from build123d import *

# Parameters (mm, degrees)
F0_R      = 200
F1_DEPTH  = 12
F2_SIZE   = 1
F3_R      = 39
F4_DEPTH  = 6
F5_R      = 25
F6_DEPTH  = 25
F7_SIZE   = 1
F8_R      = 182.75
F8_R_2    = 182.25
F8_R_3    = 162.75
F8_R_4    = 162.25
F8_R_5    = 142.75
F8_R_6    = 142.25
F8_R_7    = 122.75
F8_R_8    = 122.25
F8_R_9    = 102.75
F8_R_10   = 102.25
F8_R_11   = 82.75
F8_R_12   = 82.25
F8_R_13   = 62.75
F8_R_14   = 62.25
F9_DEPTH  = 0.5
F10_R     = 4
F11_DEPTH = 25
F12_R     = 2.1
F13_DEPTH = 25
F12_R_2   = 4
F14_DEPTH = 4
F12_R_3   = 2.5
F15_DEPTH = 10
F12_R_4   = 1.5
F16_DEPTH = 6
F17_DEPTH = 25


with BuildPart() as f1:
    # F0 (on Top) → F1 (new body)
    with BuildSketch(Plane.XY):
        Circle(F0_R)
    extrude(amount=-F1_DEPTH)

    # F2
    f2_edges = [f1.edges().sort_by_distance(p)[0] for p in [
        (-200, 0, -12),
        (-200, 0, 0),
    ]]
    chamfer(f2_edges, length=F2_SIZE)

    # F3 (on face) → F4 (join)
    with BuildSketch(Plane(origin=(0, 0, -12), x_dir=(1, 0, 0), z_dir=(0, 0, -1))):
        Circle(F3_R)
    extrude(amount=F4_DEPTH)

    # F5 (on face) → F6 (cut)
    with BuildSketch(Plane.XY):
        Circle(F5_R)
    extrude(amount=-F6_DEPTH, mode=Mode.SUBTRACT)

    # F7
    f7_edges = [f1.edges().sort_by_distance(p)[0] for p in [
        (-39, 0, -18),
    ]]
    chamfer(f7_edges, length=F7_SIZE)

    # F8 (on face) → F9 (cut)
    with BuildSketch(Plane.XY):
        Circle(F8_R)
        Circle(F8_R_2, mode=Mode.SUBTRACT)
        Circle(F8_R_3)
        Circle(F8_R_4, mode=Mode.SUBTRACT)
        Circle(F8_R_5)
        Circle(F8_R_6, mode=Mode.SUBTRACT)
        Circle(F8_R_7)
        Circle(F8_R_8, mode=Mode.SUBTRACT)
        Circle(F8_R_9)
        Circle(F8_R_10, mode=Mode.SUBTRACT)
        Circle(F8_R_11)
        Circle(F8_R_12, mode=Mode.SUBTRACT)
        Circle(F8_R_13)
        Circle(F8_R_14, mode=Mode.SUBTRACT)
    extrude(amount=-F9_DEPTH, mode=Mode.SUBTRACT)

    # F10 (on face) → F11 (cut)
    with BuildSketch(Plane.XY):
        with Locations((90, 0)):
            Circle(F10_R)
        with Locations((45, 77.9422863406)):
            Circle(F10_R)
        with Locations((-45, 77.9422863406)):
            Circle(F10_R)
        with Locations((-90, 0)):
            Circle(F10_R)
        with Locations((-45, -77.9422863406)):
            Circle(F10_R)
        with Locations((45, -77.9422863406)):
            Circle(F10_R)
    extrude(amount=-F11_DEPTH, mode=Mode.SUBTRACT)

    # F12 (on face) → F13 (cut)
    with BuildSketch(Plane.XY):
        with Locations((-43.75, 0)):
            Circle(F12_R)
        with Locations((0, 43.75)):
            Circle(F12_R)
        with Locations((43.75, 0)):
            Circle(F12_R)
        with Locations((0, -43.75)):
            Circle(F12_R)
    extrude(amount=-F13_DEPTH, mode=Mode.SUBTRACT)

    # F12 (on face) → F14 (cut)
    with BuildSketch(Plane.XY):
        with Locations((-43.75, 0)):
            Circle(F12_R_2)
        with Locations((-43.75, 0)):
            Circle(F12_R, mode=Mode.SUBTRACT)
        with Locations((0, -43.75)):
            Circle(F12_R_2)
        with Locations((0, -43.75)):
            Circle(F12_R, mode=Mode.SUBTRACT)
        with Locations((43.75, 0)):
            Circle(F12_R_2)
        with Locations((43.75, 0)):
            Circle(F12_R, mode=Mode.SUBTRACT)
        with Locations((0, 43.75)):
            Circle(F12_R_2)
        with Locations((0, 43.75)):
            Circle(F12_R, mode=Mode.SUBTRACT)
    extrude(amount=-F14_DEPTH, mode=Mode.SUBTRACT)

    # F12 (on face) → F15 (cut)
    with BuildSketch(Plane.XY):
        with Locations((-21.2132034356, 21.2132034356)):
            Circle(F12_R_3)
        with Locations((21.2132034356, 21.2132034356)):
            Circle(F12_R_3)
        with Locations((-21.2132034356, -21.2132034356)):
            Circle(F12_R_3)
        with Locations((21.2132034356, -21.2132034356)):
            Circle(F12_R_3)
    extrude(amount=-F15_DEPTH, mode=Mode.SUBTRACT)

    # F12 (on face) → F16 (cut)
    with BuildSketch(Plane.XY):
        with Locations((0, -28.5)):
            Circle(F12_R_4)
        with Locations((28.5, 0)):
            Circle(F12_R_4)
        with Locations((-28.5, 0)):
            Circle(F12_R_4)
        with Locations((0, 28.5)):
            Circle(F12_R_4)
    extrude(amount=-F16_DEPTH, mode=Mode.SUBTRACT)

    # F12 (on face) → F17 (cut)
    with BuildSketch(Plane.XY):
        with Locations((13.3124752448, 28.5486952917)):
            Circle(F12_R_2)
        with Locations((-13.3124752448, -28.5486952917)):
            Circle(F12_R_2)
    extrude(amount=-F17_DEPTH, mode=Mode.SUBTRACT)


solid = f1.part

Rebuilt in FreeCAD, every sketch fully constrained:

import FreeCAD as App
import Part
import Sketcher
from FreeCAD import Vector


def edges_at(feature, points):
    """Names of the edges that pass closest to the given points."""
    edges = feature.Shape.Edges
    near = lambda p: min(range(len(edges)), key=lambda i: edges[i].distToShape(Part.Vertex(*p))[0])
    return sorted({f"Edge{near(p) + 1}" for p in points})

doc = App.newDocument("Part")
body = doc.addObject("PartDesign::Body", "Body")

# Sketch on XY plane
sketch1 = body.newObject("Sketcher::SketchObject", "Sketch")
sketch1.AttachmentSupport = (doc.getObject("XY_Plane"), [""])
sketch1.MapMode = "FlatFace"
sketch1.addGeometry(Part.Circle(Vector(0, 0, 0), Vector(0, 0, 1), 200), False)
sketch1.addConstraint([
    Sketcher.Constraint("Coincident", 0, 3, -1, 1),
    Sketcher.Constraint("Diameter", 0, 400.0),
])
pad1 = body.newObject("PartDesign::Pad", "Pad")
pad1.Profile = sketch1
pad1.Length = 12
pad1.Reversed = True
doc.recompute()

chamfer = body.newObject("PartDesign::Chamfer", "Chamfer")
chamfer.Base = (pad1, edges_at(pad1, [(-200, 0, -12), (-200, 0, 0)]))
chamfer.Size = 1

# Sketch on XY plane
sketch2 = body.newObject("Sketcher::SketchObject", "Sketch001")
sketch2.AttachmentSupport = (doc.getObject("XY_Plane"), [""])
sketch2.MapMode = "FlatFace"
sketch2.AttachmentOffset = App.Placement(Vector(0, 0, -12), App.Rotation())
sketch2.addGeometry(Part.Circle(Vector(0, 0, 0), Vector(0, 0, 1), 39), False)
sketch2.addConstraint([
    Sketcher.Constraint("Coincident", 0, 3, -1, 1),
    Sketcher.Constraint("Diameter", 0, 78.0),
])
pad2 = body.newObject("PartDesign::Pad", "Pad001")
pad2.Profile = sketch2
pad2.Length = 6
pad2.Reversed = True

# Sketch on XY plane
sketch3 = body.newObject("Sketcher::SketchObject", "Sketch002")
sketch3.AttachmentSupport = (doc.getObject("XY_Plane"), [""])
sketch3.MapMode = "FlatFace"
sketch3.addGeometry(Part.Circle(Vector(0, 0, 0), Vector(0, 0, 1), 25), False)
sketch3.addConstraint([
    Sketcher.Constraint("Coincident", 0, 3, -1, 1),
    Sketcher.Constraint("Diameter", 0, 50.0),
])
pocket1 = body.newObject("PartDesign::Pocket", "Pocket")
pocket1.Profile = sketch3
pocket1.Length = 25
doc.recompute()

chamfer2 = body.newObject("PartDesign::Chamfer", "Chamfer001")
chamfer2.Base = (pocket1, edges_at(pocket1, [(-39, 0, -18)]))
chamfer2.Size = 1

# Sketch on XY plane
sketch4 = body.newObject("Sketcher::SketchObject", "Sketch003")
sketch4.AttachmentSupport = (doc.getObject("XY_Plane"), [""])
sketch4.MapMode = "FlatFace"
sketch4.addGeometry([
    Part.Circle(Vector(0, 0, 0), Vector(0, 0, 1), 182.75),  # 0
    Part.Circle(Vector(0, 0, 0), Vector(0, 0, 1), 182.25),  # 1
    Part.Circle(Vector(0, 0, 0), Vector(0, 0, 1), 162.75),  # 2
    Part.Circle(Vector(0, 0, 0), Vector(0, 0, 1), 162.25),  # 3
    Part.Circle(Vector(0, 0, 0), Vector(0, 0, 1), 142.75),  # 4
    Part.Circle(Vector(0, 0, 0), Vector(0, 0, 1), 142.25),  # 5
    Part.Circle(Vector(0, 0, 0), Vector(0, 0, 1), 122.75),  # 6
    Part.Circle(Vector(0, 0, 0), Vector(0, 0, 1), 122.25),  # 7
    Part.Circle(Vector(0, 0, 0), Vector(0, 0, 1), 102.75),  # 8
    Part.Circle(Vector(0, 0, 0), Vector(0, 0, 1), 102.25),  # 9
    Part.Circle(Vector(0, 0, 0), Vector(0, 0, 1), 82.75),  # 10
    Part.Circle(Vector(0, 0, 0), Vector(0, 0, 1), 82.25),  # 11
    Part.Circle(Vector(0, 0, 0), Vector(0, 0, 1), 62.75),  # 12
    Part.Circle(Vector(0, 0, 0), Vector(0, 0, 1), 62.25),  # 13
], False)
sketch4.addConstraint([
    Sketcher.Constraint("Coincident", 0, 3, -1, 1),
    Sketcher.Constraint("Coincident", 1, 3, -1, 1),
    Sketcher.Constraint("Coincident", 2, 3, -1, 1),
    Sketcher.Constraint("Coincident", 3, 3, -1, 1),
    Sketcher.Constraint("Coincident", 4, 3, -1, 1),
    Sketcher.Constraint("Coincident", 5, 3, -1, 1),
    Sketcher.Constraint("Coincident", 6, 3, -1, 1),
    Sketcher.Constraint("Coincident", 7, 3, -1, 1),
    Sketcher.Constraint("Coincident", 8, 3, -1, 1),
    Sketcher.Constraint("Coincident", 9, 3, -1, 1),
    Sketcher.Constraint("Coincident", 10, 3, -1, 1),
    Sketcher.Constraint("Coincident", 11, 3, -1, 1),
    Sketcher.Constraint("Coincident", 12, 3, -1, 1),
    Sketcher.Constraint("Coincident", 13, 3, -1, 1),
    Sketcher.Constraint("Diameter", 0, 365.5),
    Sketcher.Constraint("Diameter", 1, 364.5),
    Sketcher.Constraint("Diameter", 2, 325.5),
    Sketcher.Constraint("Diameter", 3, 324.5),
    Sketcher.Constraint("Diameter", 4, 285.5),
    Sketcher.Constraint("Diameter", 5, 284.5),
    Sketcher.Constraint("Diameter", 6, 245.5),
    Sketcher.Constraint("Diameter", 7, 244.5),
    Sketcher.Constraint("Diameter", 8, 205.5),
    Sketcher.Constraint("Diameter", 9, 204.5),
    Sketcher.Constraint("Diameter", 10, 165.5),
    Sketcher.Constraint("Diameter", 11, 164.5),
    Sketcher.Constraint("Diameter", 12, 125.5),
    Sketcher.Constraint("Diameter", 13, 124.5),
])
pocket2 = body.newObject("PartDesign::Pocket", "Pocket001")
pocket2.Profile = sketch4
pocket2.Length = 0.5

# Sketch on XY plane
sketch5 = body.newObject("Sketcher::SketchObject", "Sketch004")
sketch5.AttachmentSupport = (doc.getObject("XY_Plane"), [""])
sketch5.MapMode = "FlatFace"
sketch5.addGeometry([
    Part.Circle(Vector(90, 0, 0), Vector(0, 0, 1), 4),  # 0
    Part.Circle(Vector(45, 77.942286, 0), Vector(0, 0, 1), 4),  # 1
    Part.Circle(Vector(-45, 77.942286, 0), Vector(0, 0, 1), 4),  # 2
    Part.Circle(Vector(-90, 0, 0), Vector(0, 0, 1), 4),  # 3
    Part.Circle(Vector(-45, -77.942286, 0), Vector(0, 0, 1), 4),  # 4
    Part.Circle(Vector(45, -77.942286, 0), Vector(0, 0, 1), 4),  # 5
], False)
sketch5.addConstraint([
    Sketcher.Constraint("Equal", 0, 1),
    Sketcher.Constraint("Equal", 1, 2),
    Sketcher.Constraint("Equal", 2, 3),
    Sketcher.Constraint("Equal", 3, 4),
    Sketcher.Constraint("Equal", 4, 5),
    Sketcher.Constraint("Symmetric", 0, 3, 3, 3, -1, 1),
    Sketcher.Constraint("Symmetric", 1, 3, 4, 3, -1, 1),
    Sketcher.Constraint("Symmetric", 2, 3, 5, 3, -1, 1),
    Sketcher.Constraint("Symmetric", 1, 3, 2, 3, -2),
    Sketcher.Constraint("PointOnObject", 0, 3, -1),
    Sketcher.Constraint("Diameter", 0, 8.0),
    Sketcher.Constraint("DistanceX", -1, 1, 0, 3, 90.0),
    Sketcher.Constraint("DistanceX", -1, 1, 1, 3, 45.0),
    Sketcher.Constraint("DistanceY", -1, 1, 1, 3, 77.942286),
])
pocket3 = body.newObject("PartDesign::Pocket", "Pocket002")
pocket3.Profile = sketch5
pocket3.Length = 25

# Sketch on XY plane
sketch6 = body.newObject("Sketcher::SketchObject", "Sketch005")
sketch6.AttachmentSupport = (doc.getObject("XY_Plane"), [""])
sketch6.MapMode = "FlatFace"
sketch6.addGeometry([
    Part.Circle(Vector(-43.75, 0, 0), Vector(0, 0, 1), 2.1),
    Part.Circle(Vector(0, 43.75, 0), Vector(0, 0, 1), 2.1),
    Part.Circle(Vector(43.75, 0, 0), Vector(0, 0, 1), 2.1),
    Part.Circle(Vector(0, -43.75, 0), Vector(0, 0, 1), 2.1),
], False)
sketch6.addConstraint([
    Sketcher.Constraint("Equal", 0, 1),
    Sketcher.Constraint("Equal", 1, 2),
    Sketcher.Constraint("Equal", 2, 3),
    Sketcher.Constraint("Symmetric", 0, 3, 2, 3, -1, 1),
    Sketcher.Constraint("Symmetric", 1, 3, 3, 3, -1, 1),
    Sketcher.Constraint("PointOnObject", 0, 3, -1),
    Sketcher.Constraint("PointOnObject", 1, 3, -2),
    Sketcher.Constraint("Diameter", 0, 4.2),
    Sketcher.Constraint("DistanceX", 0, 3, 2, 3, 87.5),
    Sketcher.Constraint("DistanceY", 3, 3, 1, 3, 87.5),
])
pocket4 = body.newObject("PartDesign::Pocket", "Pocket003")
pocket4.Profile = sketch6
pocket4.Length = 25

# Sketch on XY plane
sketch7 = body.newObject("Sketcher::SketchObject", "Sketch006")
sketch7.AttachmentSupport = (doc.getObject("XY_Plane"), [""])
sketch7.MapMode = "FlatFace"
sketch7.addGeometry([
    Part.Circle(Vector(-43.75, 0, 0), Vector(0, 0, 1), 4),  # 0
    Part.Circle(Vector(-43.75, 0, 0), Vector(0, 0, 1), 2.1),  # 1
    Part.Circle(Vector(0, -43.75, 0), Vector(0, 0, 1), 4),  # 2
    Part.Circle(Vector(0, -43.75, 0), Vector(0, 0, 1), 2.1),  # 3
    Part.Circle(Vector(43.75, 0, 0), Vector(0, 0, 1), 4),  # 4
    Part.Circle(Vector(43.75, 0, 0), Vector(0, 0, 1), 2.1),  # 5
    Part.Circle(Vector(0, 43.75, 0), Vector(0, 0, 1), 4),  # 6
    Part.Circle(Vector(0, 43.75, 0), Vector(0, 0, 1), 2.1),  # 7
], False)
sketch7.addConstraint([
    Sketcher.Constraint("Coincident", 1, 3, 0, 3),
    Sketcher.Constraint("Coincident", 3, 3, 2, 3),
    Sketcher.Constraint("Coincident", 5, 3, 4, 3),
    Sketcher.Constraint("Coincident", 7, 3, 6, 3),
    Sketcher.Constraint("Equal", 0, 2),
    Sketcher.Constraint("Equal", 1, 3),
    Sketcher.Constraint("Equal", 2, 4),
    Sketcher.Constraint("Equal", 3, 5),
    Sketcher.Constraint("Equal", 4, 6),
    Sketcher.Constraint("Equal", 5, 7),
    Sketcher.Constraint("Symmetric", 0, 3, 4, 3, -1, 1),
    Sketcher.Constraint("Symmetric", 2, 3, 6, 3, -1, 1),
    Sketcher.Constraint("PointOnObject", 0, 3, -1),
    Sketcher.Constraint("PointOnObject", 2, 3, -2),
    Sketcher.Constraint("Diameter", 0, 8.0),
    Sketcher.Constraint("Diameter", 1, 4.2),
    Sketcher.Constraint("DistanceX", 0, 3, 4, 3, 87.5),
    Sketcher.Constraint("DistanceY", 2, 3, 6, 3, 87.5),
])
pocket5 = body.newObject("PartDesign::Pocket", "Pocket004")
pocket5.Profile = sketch7
pocket5.Length = 4

# Sketch on XY plane
sketch8 = body.newObject("Sketcher::SketchObject", "Sketch007")
sketch8.AttachmentSupport = (doc.getObject("XY_Plane"), [""])
sketch8.MapMode = "FlatFace"
sketch8.addGeometry([
    Part.Circle(Vector(-21.213203, 21.213203, 0), Vector(0, 0, 1), 2.5),
    Part.Circle(Vector(21.213203, 21.213203, 0), Vector(0, 0, 1), 2.5),
    Part.Circle(Vector(-21.213203, -21.213203, 0), Vector(0, 0, 1), 2.5),
    Part.Circle(Vector(21.213203, -21.213203, 0), Vector(0, 0, 1), 2.5),
], False)
sketch8.addConstraint([
    Sketcher.Constraint("Equal", 0, 1),
    Sketcher.Constraint("Equal", 1, 2),
    Sketcher.Constraint("Equal", 2, 3),
    Sketcher.Constraint("Symmetric", 1, 3, 2, 3, -1, 1),
    Sketcher.Constraint("Symmetric", 0, 3, 3, 3, -1, 1),
    Sketcher.Constraint("Symmetric", 0, 3, 1, 3, -2),
    Sketcher.Constraint("Diameter", 0, 5.0),
    Sketcher.Constraint("DistanceX", 0, 3, -1, 1, 21.213203),
    Sketcher.Constraint("DistanceY", -1, 1, 0, 3, 21.213203),
])
pocket6 = body.newObject("PartDesign::Pocket", "Pocket005")
pocket6.Profile = sketch8
pocket6.Length = 10

# Sketch on XY plane
sketch9 = body.newObject("Sketcher::SketchObject", "Sketch008")
sketch9.AttachmentSupport = (doc.getObject("XY_Plane"), [""])
sketch9.MapMode = "FlatFace"
sketch9.addGeometry([
    Part.Circle(Vector(0, -28.5, 0), Vector(0, 0, 1), 1.5),
    Part.Circle(Vector(28.5, 0, 0), Vector(0, 0, 1), 1.5),
    Part.Circle(Vector(-28.5, 0, 0), Vector(0, 0, 1), 1.5),
    Part.Circle(Vector(0, 28.5, 0), Vector(0, 0, 1), 1.5),
], False)
sketch9.addConstraint([
    Sketcher.Constraint("Equal", 0, 1),
    Sketcher.Constraint("Equal", 1, 2),
    Sketcher.Constraint("Equal", 2, 3),
    Sketcher.Constraint("Symmetric", 1, 3, 2, 3, -1, 1),
    Sketcher.Constraint("Symmetric", 0, 3, 3, 3, -1, 1),
    Sketcher.Constraint("PointOnObject", 0, 3, -2),
    Sketcher.Constraint("PointOnObject", 1, 3, -1),
    Sketcher.Constraint("Diameter", 0, 3.0),
    Sketcher.Constraint("DistanceX", 2, 3, 1, 3, 57.0),
    Sketcher.Constraint("DistanceY", 0, 3, 3, 3, 57.0),
])
pocket7 = body.newObject("PartDesign::Pocket", "Pocket006")
pocket7.Profile = sketch9
pocket7.Length = 6

# Sketch on XY plane
sketch10 = body.newObject("Sketcher::SketchObject", "Sketch009")
sketch10.AttachmentSupport = (doc.getObject("XY_Plane"), [""])
sketch10.MapMode = "FlatFace"
sketch10.addGeometry([
    Part.Circle(Vector(13.312475, 28.548695, 0), Vector(0, 0, 1), 4),
    Part.Circle(Vector(-13.312475, -28.548695, 0), Vector(0, 0, 1), 4),
], False)
sketch10.addConstraint([
    Sketcher.Constraint("Equal", 0, 1),
    Sketcher.Constraint("Symmetric", 0, 3, 1, 3, -1, 1),
    Sketcher.Constraint("Diameter", 0, 8.0),
    Sketcher.Constraint("DistanceX", 1, 3, 0, 3, 26.62495),
    Sketcher.Constraint("DistanceY", 1, 3, 0, 3, 57.097391),
])
pocket8 = body.newObject("PartDesign::Pocket", "Pocket007")
pocket8.Profile = sketch10
pocket8.Length = 25

doc.recompute()
